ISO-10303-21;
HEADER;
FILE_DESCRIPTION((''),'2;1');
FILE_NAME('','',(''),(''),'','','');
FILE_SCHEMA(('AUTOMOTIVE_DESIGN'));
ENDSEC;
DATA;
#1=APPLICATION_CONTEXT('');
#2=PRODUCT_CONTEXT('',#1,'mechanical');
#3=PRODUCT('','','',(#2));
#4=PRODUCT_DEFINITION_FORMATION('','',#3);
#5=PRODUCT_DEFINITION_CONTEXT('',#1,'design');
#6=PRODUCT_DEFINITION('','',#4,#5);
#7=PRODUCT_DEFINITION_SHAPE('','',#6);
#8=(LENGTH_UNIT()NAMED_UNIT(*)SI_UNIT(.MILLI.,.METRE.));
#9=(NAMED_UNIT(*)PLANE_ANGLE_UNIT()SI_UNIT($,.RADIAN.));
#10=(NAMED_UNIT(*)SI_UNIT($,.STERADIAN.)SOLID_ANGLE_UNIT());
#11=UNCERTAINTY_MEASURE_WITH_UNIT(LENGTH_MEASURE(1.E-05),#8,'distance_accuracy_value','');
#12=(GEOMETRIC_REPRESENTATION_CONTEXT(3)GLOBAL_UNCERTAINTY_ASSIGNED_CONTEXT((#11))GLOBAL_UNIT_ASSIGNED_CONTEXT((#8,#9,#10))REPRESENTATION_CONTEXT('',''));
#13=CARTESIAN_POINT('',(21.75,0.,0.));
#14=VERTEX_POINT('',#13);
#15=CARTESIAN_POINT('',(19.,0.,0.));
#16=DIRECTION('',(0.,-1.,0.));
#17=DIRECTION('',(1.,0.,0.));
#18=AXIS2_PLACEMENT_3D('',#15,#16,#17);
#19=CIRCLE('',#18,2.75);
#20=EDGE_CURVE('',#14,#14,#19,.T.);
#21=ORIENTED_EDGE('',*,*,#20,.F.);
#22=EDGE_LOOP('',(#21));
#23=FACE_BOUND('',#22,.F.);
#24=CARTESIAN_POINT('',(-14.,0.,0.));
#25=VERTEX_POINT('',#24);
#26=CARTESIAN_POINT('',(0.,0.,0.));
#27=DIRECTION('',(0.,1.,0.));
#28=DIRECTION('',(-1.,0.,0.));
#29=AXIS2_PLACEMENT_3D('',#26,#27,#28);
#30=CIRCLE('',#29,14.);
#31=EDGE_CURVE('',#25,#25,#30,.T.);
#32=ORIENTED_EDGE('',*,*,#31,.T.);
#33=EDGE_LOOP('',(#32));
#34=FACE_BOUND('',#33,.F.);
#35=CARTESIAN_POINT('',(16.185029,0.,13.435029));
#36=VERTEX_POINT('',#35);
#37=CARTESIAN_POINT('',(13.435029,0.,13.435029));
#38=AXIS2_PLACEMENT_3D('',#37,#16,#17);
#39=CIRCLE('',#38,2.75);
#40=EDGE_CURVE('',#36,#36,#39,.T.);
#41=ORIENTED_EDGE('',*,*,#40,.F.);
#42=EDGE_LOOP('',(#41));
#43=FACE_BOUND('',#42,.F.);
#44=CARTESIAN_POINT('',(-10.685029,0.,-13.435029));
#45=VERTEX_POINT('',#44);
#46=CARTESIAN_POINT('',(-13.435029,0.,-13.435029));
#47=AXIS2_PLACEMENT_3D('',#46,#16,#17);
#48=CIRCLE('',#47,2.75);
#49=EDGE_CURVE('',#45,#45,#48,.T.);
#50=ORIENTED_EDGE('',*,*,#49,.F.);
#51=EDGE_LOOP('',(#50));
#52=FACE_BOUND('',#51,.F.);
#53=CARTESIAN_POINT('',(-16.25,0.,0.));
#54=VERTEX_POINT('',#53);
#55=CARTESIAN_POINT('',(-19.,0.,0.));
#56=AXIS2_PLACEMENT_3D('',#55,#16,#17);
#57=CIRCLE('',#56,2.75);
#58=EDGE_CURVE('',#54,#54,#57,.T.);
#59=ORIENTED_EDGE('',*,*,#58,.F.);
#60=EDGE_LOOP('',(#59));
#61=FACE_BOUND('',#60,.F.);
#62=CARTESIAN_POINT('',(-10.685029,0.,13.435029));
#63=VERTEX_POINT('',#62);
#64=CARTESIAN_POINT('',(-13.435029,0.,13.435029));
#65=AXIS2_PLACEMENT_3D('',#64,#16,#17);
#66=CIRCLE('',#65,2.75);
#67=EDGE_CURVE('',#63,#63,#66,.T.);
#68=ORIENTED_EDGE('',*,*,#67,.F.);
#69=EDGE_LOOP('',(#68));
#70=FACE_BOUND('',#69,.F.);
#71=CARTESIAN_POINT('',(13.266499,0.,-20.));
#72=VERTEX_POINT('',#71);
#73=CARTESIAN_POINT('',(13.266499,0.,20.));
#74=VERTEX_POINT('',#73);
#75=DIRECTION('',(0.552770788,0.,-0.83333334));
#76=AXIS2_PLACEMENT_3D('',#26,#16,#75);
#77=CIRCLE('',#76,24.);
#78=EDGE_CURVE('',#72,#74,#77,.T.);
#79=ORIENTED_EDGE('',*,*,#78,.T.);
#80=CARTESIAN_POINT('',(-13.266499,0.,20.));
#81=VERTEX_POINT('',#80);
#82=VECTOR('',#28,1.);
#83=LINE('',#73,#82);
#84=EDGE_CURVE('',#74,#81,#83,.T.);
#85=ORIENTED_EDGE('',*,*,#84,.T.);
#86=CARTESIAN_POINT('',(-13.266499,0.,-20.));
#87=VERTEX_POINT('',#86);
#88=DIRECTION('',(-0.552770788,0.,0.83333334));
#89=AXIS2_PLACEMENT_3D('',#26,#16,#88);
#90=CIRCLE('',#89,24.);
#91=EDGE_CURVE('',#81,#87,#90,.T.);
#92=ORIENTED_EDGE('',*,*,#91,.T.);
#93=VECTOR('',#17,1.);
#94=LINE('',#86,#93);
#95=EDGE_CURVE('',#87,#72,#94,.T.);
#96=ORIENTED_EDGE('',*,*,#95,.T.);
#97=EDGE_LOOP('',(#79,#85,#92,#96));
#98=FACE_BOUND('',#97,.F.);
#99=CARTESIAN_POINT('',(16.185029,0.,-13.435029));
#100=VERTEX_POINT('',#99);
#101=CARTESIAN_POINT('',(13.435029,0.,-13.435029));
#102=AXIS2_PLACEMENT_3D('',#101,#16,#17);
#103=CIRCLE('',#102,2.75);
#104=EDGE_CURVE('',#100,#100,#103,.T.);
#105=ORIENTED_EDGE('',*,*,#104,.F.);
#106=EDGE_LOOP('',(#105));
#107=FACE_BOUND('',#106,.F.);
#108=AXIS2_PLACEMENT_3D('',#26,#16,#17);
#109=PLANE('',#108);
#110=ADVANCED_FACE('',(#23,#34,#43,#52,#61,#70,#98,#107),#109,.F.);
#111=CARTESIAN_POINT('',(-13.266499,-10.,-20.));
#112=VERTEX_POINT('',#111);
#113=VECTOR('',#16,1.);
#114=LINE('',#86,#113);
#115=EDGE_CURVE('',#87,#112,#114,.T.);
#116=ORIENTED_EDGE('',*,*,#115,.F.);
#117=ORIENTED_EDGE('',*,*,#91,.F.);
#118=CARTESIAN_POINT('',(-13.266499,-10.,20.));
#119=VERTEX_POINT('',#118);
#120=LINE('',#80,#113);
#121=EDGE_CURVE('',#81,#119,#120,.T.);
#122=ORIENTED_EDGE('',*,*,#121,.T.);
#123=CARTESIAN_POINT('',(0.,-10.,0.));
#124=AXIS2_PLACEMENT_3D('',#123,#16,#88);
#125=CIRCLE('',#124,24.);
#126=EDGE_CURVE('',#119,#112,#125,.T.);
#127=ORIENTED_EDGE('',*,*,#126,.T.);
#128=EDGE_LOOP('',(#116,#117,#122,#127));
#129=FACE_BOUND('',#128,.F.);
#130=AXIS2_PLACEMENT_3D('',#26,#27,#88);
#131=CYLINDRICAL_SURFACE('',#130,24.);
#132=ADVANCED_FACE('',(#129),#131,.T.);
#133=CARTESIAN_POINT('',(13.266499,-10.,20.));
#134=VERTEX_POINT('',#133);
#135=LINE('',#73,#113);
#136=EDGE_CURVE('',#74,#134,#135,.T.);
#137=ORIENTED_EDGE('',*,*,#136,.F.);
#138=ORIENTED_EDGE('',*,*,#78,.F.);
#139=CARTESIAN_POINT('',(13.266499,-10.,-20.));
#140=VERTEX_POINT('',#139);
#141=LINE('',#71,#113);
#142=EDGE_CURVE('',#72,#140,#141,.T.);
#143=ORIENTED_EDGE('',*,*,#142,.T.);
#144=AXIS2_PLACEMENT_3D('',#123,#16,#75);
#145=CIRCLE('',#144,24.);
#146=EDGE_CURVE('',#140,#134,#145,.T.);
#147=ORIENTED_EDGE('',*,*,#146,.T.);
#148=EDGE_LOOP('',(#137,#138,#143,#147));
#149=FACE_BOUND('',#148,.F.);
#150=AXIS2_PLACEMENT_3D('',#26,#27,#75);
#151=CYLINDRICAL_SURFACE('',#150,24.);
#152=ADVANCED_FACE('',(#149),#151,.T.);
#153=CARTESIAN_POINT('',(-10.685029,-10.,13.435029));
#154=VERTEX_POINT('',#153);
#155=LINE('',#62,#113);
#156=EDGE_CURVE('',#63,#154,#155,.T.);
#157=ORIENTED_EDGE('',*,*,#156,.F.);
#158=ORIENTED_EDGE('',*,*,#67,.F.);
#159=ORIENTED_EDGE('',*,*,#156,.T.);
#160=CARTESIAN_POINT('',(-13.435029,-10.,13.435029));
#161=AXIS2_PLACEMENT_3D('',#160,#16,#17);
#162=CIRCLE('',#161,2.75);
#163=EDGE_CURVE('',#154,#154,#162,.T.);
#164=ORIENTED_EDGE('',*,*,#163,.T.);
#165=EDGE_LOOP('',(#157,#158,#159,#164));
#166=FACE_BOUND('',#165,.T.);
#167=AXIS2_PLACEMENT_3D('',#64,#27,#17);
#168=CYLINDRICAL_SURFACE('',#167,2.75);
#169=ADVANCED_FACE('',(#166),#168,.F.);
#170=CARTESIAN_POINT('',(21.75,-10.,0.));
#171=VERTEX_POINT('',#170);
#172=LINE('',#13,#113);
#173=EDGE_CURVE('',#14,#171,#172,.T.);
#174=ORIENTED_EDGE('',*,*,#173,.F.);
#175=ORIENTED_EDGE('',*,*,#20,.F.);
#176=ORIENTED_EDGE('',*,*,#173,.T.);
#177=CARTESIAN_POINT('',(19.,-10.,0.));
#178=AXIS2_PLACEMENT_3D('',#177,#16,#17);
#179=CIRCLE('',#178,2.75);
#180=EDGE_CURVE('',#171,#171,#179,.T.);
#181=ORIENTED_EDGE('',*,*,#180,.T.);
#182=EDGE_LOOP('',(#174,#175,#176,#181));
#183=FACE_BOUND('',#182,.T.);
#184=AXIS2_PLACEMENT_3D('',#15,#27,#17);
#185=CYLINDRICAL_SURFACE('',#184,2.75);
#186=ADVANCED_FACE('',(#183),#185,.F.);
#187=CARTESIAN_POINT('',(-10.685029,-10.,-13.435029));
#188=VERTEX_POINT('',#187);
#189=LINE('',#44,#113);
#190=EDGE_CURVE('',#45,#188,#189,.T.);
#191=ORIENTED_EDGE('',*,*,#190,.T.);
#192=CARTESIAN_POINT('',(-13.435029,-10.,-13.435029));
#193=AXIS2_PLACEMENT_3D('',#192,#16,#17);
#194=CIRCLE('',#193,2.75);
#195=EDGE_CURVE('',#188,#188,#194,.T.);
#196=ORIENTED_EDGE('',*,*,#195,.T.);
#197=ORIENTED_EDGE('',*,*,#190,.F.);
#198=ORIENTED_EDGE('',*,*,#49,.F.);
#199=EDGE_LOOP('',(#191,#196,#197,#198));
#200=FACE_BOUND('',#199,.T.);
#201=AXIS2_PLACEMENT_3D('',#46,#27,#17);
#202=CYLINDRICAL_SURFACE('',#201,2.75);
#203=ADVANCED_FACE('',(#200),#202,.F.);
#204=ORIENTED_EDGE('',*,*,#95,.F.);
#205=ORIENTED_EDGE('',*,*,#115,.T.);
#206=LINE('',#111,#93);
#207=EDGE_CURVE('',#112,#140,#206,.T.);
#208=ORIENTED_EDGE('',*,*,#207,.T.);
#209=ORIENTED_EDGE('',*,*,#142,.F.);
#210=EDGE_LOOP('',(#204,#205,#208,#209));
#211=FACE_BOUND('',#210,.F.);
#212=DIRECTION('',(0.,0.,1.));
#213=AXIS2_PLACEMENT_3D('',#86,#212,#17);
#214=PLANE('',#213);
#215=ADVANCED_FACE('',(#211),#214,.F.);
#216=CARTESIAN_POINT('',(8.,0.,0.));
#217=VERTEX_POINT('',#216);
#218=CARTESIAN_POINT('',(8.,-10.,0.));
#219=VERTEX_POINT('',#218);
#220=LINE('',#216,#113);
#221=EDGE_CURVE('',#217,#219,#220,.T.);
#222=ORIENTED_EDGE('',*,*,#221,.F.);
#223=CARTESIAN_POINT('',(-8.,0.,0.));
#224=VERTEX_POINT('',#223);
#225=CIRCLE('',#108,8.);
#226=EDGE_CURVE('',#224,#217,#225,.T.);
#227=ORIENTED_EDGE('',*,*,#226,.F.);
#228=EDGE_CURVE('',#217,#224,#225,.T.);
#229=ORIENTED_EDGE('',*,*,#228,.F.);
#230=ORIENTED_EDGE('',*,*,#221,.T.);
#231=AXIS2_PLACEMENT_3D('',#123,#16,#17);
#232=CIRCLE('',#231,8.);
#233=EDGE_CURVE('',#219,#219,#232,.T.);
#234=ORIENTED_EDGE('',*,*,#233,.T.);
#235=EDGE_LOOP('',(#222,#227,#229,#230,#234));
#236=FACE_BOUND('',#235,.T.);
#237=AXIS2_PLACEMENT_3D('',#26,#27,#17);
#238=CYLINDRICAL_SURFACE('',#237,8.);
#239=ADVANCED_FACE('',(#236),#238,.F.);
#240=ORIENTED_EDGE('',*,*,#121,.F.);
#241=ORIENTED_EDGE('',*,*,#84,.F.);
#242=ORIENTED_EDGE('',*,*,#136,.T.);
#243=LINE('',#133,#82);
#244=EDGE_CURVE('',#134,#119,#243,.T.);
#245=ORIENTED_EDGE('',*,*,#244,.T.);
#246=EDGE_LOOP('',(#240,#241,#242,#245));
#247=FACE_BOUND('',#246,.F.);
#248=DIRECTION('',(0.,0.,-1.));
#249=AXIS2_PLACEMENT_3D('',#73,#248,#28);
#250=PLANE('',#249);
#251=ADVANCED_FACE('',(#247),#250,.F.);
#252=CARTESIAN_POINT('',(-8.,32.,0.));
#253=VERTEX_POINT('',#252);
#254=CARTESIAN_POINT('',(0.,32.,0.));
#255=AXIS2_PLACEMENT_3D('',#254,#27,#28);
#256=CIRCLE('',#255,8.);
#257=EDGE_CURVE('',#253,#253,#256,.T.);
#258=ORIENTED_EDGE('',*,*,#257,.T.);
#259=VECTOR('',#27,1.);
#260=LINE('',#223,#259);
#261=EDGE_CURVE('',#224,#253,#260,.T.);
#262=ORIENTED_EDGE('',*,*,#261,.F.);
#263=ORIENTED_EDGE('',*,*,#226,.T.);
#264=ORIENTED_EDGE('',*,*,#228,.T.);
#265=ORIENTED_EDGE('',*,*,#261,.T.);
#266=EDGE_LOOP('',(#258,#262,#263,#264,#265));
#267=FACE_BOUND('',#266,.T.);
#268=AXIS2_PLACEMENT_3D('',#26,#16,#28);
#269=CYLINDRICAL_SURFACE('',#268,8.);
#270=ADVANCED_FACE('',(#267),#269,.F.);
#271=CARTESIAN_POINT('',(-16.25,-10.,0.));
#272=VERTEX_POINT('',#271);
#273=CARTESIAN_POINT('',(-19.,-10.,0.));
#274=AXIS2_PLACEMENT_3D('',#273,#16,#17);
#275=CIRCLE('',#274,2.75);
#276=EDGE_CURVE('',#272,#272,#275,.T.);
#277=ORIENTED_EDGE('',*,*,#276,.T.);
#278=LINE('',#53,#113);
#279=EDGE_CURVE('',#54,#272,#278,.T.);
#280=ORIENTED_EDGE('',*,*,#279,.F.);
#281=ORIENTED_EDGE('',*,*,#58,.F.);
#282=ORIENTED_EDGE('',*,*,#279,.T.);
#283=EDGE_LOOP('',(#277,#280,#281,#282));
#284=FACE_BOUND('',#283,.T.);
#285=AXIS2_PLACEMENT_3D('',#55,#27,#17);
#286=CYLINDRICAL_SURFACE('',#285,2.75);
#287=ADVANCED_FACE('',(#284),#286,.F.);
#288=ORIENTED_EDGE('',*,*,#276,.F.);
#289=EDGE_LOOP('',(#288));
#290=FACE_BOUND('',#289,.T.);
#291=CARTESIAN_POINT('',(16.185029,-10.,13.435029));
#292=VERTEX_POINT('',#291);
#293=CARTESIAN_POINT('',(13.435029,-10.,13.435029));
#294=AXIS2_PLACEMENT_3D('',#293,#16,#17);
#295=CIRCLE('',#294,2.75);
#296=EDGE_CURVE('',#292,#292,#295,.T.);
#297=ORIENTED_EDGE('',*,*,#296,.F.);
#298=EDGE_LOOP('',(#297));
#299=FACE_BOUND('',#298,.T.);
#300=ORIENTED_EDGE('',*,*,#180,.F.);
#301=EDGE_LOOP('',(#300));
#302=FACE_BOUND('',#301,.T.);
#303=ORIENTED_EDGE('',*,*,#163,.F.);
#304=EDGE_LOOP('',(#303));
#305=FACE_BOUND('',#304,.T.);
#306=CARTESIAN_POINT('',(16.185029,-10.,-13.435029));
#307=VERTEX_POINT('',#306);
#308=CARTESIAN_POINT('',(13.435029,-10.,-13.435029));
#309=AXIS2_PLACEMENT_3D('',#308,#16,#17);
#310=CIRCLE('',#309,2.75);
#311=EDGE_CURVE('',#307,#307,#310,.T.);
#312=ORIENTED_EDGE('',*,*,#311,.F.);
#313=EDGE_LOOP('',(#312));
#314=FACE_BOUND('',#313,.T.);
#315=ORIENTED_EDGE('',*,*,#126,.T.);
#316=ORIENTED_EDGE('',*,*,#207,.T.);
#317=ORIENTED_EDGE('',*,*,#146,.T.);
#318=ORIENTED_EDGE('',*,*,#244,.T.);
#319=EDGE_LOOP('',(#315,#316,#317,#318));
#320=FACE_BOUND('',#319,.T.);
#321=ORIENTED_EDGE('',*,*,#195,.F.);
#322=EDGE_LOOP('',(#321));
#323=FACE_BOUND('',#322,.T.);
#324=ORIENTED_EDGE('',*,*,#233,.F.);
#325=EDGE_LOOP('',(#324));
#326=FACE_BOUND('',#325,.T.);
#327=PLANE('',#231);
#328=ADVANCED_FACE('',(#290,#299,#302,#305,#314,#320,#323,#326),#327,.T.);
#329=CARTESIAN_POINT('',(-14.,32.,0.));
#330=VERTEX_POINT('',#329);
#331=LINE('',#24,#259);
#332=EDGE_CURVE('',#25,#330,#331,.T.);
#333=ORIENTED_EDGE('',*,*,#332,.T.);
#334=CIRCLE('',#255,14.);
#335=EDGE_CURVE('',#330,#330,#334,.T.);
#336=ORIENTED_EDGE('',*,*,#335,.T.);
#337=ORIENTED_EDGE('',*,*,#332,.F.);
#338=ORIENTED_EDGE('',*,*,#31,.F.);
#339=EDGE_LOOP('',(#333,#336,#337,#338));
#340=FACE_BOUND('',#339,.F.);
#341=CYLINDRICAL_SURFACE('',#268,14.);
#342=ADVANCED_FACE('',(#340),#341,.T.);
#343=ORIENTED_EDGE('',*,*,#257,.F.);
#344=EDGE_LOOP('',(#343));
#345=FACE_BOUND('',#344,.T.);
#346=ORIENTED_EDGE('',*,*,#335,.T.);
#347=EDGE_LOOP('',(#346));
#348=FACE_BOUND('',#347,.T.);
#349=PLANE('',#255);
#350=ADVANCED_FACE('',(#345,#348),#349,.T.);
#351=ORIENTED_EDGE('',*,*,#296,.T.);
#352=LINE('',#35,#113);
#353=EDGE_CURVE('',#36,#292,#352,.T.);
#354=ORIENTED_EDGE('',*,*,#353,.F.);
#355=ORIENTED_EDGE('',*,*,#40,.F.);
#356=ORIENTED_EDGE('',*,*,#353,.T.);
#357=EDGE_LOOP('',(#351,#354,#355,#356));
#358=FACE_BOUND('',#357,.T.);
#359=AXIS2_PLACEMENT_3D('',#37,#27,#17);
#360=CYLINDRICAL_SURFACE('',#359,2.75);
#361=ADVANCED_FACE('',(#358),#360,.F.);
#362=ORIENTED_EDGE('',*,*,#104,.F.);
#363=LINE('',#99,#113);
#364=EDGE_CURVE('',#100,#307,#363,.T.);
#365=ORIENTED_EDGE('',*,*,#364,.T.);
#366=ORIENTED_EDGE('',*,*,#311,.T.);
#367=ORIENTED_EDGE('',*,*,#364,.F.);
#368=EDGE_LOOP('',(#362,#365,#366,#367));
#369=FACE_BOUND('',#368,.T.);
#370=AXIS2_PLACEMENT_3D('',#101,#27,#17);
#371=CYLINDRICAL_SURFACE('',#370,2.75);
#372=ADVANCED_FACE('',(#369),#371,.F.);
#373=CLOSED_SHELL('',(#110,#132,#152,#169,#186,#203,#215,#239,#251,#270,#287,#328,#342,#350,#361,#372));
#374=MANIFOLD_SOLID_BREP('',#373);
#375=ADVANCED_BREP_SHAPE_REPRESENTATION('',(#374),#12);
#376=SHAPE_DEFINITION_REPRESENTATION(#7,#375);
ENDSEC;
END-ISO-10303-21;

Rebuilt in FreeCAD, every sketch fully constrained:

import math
import FreeCAD as App
import Part
import Sketcher

doc = App.newDocument("Part")
body = doc.addObject("PartDesign::Body", "Body")

sketch1 = body.newObject("Sketcher::SketchObject", "Sketch")
sketch1.AttachmentSupport = (doc.getObject("XZ_Plane"), [""])
sketch1.MapMode = "FlatFace"
sketch1.addGeometry(Part.LineSegment(App.Vector(13.3, 20, 0), App.Vector(-13.3, 20, 0)), False)
sketch1.addGeometry(Part.ArcOfCircle(Part.Circle(App.Vector(0, 0, 0), App.Vector(0, 0, 1), 24), math.radians(124), math.radians(236)), False)
sketch1.addGeometry(Part.LineSegment(App.Vector(-13.3, -20, 0), App.Vector(13.3, -20, 0)), False)
sketch1.addGeometry(Part.ArcOfCircle(Part.Circle(App.Vector(0, 0, 0), App.Vector(0, 0, 1), 24), math.radians(-56), math.radians(56)), False)
sketch1.addGeometry(Part.Circle(App.Vector(-13.4, -13.4, 0), App.Vector(0, 0, 1), 2.8), False)
sketch1.addGeometry(Part.Circle(App.Vector(13.4, -13.4, 0), App.Vector(0, 0, 1), 2.8), False)
sketch1.addGeometry(Part.Circle(App.Vector(-19, 0, 0), App.Vector(0, 0, 1), 2.8), False)
sketch1.addGeometry(Part.Circle(App.Vector(-13.4, 13.4, 0), App.Vector(0, 0, 1), 2.8), False)
sketch1.addGeometry(Part.Circle(App.Vector(0, 0, 0), App.Vector(0, 0, 1), 8), False)
sketch1.addGeometry(Part.Circle(App.Vector(19, 0, 0), App.Vector(0, 0, 1), 2.8), False)
sketch1.addGeometry(Part.Circle(App.Vector(13.4, 13.4, 0), App.Vector(0, 0, 1), 2.8), False)
sketch1.addConstraint(Sketcher.Constraint("Coincident", 0, 2, 1, 1))
sketch1.addConstraint(Sketcher.Constraint("Coincident", 1, 2, 2, 1))
sketch1.addConstraint(Sketcher.Constraint("Coincident", 2, 2, 3, 1))
sketch1.addConstraint(Sketcher.Constraint("Coincident", 3, 2, 0, 1))
sketch1.addConstraint(Sketcher.Constraint("Horizontal", 0))
sketch1.addConstraint(Sketcher.Constraint("Horizontal", 2))
sketch1.addConstraint(Sketcher.Constraint("Coincident", 1, 3, -1, 1))
sketch1.addConstraint(Sketcher.Constraint("Coincident", 3, 3, -1, 1))
sketch1.addConstraint(Sketcher.Constraint("Coincident", 8, 3, -1, 1))
sketch1.addConstraint(Sketcher.Constraint("Equal", 1, 3))
sketch1.addConstraint(Sketcher.Constraint("Equal", 4, 5))
sketch1.addConstraint(Sketcher.Constraint("Equal", 5, 6))
sketch1.addConstraint(Sketcher.Constraint("Equal", 6, 7))
sketch1.addConstraint(Sketcher.Constraint("Equal", 7, 9))
sketch1.addConstraint(Sketcher.Constraint("Equal", 9, 10))
sketch1.addConstraint(Sketcher.Constraint("Symmetric", 5, 3, 7, 3, -1, 1))
sketch1.addConstraint(Sketcher.Constraint("Symmetric", 6, 3, 9, 3, -1, 1))
sketch1.addConstraint(Sketcher.Constraint("Symmetric", 4, 3, 10, 3, -1, 1))
sketch1.addConstraint(Sketcher.Constraint("Symmetric", 4, 3, 5, 3, -2))
sketch1.addConstraint(Sketcher.Constraint("PointOnObject", 6, 3, -1))
sketch1.addConstraint(Sketcher.Constraint("Vertical", 0, 2, 1, 2))
sketch1.addConstraint(Sketcher.Constraint("Diameter", 8, 16.0))
sketch1.addConstraint(Sketcher.Constraint("Radius", 1, 24.0))
sketch1.addConstraint(Sketcher.Constraint("Diameter", 4, 5.5))
sketch1.addConstraint(Sketcher.Constraint("DistanceX", 6, 3, -1, 1, 19.0))
sketch1.addConstraint(Sketcher.Constraint("DistanceY", -1, 1, 0, 2, 20.0))
sketch1.addConstraint(Sketcher.Constraint("DistanceX", 4, 3, -1, 1, 13.435029))
sketch1.addConstraint(Sketcher.Constraint("DistanceY", 4, 3, -1, 1, 13.435029))
pad1 = body.newObject("PartDesign::Pad", "Pad")
pad1.Profile = sketch1
pad1.Length = 10

sketch2 = body.newObject("Sketcher::SketchObject", "Sketch001")
sketch2.AttachmentSupport = (doc.getObject("XZ_Plane"), [""])
sketch2.MapMode = "FlatFace"
sketch2.addGeometry(Part.Circle(App.Vector(0, 0, 0), App.Vector(0, 0, 1), 14), False)
sketch2.addGeometry(Part.Circle(App.Vector(0, 0, 0), App.Vector(0, 0, 1), 8), False)
sketch2.addConstraint(Sketcher.Constraint("Coincident", 0, 3, -1, 1))
sketch2.addConstraint(Sketcher.Constraint("Coincident", 1, 3, -1, 1))
sketch2.addConstraint(Sketcher.Constraint("Diameter", 0, 28.0))
sketch2.addConstraint(Sketcher.Constraint("Diameter", 1, 16.0))
pad2 = body.newObject("PartDesign::Pad", "Pad001")
pad2.Profile = sketch2
pad2.Length = 32
pad2.Reversed = True

doc.recompute()
